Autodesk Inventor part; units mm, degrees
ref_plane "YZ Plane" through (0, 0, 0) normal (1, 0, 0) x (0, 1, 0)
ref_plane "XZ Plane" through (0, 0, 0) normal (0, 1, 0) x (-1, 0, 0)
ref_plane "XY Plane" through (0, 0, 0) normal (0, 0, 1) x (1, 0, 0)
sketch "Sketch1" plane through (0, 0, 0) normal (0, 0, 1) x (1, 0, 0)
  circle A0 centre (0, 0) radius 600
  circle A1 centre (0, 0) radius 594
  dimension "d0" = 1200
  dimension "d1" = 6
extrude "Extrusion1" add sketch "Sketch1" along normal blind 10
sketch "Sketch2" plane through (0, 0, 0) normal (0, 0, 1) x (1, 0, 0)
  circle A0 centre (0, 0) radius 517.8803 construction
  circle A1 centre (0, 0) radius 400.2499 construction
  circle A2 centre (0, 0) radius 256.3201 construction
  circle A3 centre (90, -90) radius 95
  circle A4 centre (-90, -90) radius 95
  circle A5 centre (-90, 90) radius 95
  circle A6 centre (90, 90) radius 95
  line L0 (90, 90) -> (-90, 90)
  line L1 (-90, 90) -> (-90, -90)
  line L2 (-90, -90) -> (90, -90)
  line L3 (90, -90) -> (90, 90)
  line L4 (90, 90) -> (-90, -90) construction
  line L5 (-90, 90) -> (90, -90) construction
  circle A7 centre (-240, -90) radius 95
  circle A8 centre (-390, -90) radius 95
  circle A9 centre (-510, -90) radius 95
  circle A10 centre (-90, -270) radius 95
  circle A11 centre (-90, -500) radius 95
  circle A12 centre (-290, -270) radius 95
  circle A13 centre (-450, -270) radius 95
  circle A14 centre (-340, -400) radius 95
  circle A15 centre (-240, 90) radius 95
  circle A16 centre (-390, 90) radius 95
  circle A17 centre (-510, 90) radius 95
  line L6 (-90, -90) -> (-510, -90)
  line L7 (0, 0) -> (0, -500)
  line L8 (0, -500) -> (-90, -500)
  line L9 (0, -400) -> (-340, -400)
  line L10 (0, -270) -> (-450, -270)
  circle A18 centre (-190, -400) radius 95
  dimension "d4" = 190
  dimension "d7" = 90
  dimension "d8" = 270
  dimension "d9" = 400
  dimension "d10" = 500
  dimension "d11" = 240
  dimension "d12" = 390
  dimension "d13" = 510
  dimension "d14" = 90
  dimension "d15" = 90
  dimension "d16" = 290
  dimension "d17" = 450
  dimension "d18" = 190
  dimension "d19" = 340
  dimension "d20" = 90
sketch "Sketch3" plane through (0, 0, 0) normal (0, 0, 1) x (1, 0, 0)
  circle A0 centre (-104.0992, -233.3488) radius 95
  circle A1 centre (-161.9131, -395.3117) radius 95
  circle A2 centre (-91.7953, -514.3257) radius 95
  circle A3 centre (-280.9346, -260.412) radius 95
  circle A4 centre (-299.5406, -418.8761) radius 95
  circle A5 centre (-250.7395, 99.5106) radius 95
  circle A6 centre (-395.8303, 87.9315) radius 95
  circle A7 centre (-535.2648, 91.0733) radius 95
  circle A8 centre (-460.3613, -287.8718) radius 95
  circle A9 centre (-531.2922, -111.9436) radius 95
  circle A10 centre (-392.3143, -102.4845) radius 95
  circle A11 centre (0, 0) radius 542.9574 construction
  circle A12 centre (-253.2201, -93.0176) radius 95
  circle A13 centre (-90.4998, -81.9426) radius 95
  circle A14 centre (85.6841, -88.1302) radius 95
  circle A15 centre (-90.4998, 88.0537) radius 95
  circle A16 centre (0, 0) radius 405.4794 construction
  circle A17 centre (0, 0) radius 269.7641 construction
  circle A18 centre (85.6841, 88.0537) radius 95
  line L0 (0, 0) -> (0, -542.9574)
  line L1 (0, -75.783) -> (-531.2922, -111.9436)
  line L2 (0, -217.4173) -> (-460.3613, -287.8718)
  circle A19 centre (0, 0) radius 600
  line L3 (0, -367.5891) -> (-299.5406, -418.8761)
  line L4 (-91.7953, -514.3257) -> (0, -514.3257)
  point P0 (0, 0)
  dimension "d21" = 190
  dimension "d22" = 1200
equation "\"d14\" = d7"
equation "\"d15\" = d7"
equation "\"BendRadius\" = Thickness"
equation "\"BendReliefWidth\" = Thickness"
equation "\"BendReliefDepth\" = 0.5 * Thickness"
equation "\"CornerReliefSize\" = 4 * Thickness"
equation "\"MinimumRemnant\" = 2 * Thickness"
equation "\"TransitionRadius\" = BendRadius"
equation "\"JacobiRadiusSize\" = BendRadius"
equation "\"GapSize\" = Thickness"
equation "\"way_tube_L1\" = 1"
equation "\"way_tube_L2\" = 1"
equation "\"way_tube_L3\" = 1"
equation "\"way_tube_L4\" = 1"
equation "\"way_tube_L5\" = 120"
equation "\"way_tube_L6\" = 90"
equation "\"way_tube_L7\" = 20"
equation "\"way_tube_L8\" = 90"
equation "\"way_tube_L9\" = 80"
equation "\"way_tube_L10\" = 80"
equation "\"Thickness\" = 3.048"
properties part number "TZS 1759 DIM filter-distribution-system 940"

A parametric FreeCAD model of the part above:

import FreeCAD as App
import Part
import Sketcher

V = App.Vector

doc = App.newDocument("Part")
body = doc.addObject("PartDesign::Body", "Body")

# Sketch on XY plane
sketch1 = body.newObject("Sketcher::SketchObject", "Sketch")
sketch1.AttachmentSupport = (doc.getObject("XY_Plane"), [""])
sketch1.MapMode = "FlatFace"
sketch1.addGeometry(Part.Circle(V(0, 0, 0), V(0, 0, 1), 600), False)
sketch1.addGeometry(Part.Circle(V(0, 0, 0), V(0, 0, 1), 594), False)
sketch1.addConstraint(Sketcher.Constraint("Coincident", 0, 3, -1, 1))
sketch1.addConstraint(Sketcher.Constraint("Coincident", 1, 3, -1, 1))
sketch1.addConstraint(Sketcher.Constraint("Diameter", 0, 1200.0))
sketch1.addConstraint(Sketcher.Constraint("Diameter", 1, 1188.0))
pad1 = body.newObject("PartDesign::Pad", "Pad")
pad1.Profile = sketch1
pad1.Length = 10

doc.recompute()
